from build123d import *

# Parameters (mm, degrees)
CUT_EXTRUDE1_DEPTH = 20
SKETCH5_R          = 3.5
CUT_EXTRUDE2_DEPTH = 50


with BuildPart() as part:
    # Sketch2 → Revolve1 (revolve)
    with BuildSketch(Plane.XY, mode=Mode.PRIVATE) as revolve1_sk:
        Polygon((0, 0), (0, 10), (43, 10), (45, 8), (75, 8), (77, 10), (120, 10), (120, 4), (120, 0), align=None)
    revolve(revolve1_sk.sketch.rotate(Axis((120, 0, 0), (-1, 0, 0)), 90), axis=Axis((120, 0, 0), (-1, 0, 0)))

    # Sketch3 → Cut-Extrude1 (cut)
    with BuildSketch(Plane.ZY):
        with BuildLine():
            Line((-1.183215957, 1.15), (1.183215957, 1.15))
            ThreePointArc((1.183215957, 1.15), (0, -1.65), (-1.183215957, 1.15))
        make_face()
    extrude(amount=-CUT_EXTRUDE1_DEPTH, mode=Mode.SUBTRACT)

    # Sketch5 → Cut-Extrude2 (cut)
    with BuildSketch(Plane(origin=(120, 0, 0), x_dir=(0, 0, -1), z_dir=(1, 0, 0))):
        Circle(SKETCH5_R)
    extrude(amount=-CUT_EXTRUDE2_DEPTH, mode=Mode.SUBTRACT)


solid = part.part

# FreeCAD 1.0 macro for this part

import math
import FreeCAD as App
import Part
import Sketcher

V = App.Vector

doc = App.newDocument("Part")
body = doc.addObject("PartDesign::Body", "Body")

sketch1 = doc.addObject("Sketcher::SketchObject", "Sketch")
body.addObject(sketch1)
sketch1.AttachmentSupport = (doc.XY_Plane, [""])
sketch1.MapMode = "FlatFace"
sketch1.addGeometry([
    Part.LineSegment(V(0, 10, 0), V(0, 0, 0)),
    Part.LineSegment(V(0, 0, 0), V(120, 0, 0)),
    Part.LineSegment(V(120, 0, 0), V(120, 10, 0)),
    Part.LineSegment(V(120, 10, 0), V(77, 10, 0)),
    Part.LineSegment(V(77, 10, 0), V(75, 8, 0)),
    Part.LineSegment(V(75, 8, 0), V(45, 8, 0)),
    Part.LineSegment(V(45, 8, 0), V(43, 10, 0)),
    Part.LineSegment(V(43, 10, 0), V(0, 10, 0)),
], False)
sketch1.addConstraint([
    Sketcher.Constraint("Coincident", 0, 2, 1, 1),
    Sketcher.Constraint("Coincident", 1, 2, 2, 1),
    Sketcher.Constraint("Coincident", 2, 2, 3, 1),
    Sketcher.Constraint("Coincident", 3, 2, 4, 1),
    Sketcher.Constraint("Coincident", 4, 2, 5, 1),
    Sketcher.Constraint("Coincident", 5, 2, 6, 1),
    Sketcher.Constraint("Coincident", 6, 2, 7, 1),
    Sketcher.Constraint("Coincident", 7, 2, 0, 1),
    Sketcher.Constraint("Vertical", 0),
    Sketcher.Constraint("Horizontal", 1),
    Sketcher.Constraint("Vertical", 2),
    Sketcher.Constraint("Horizontal", 3),
    Sketcher.Constraint("Horizontal", 5),
    Sketcher.Constraint("Horizontal", 7),
    Sketcher.Constraint("Coincident", 0, 2, -1, 1),
    Sketcher.Constraint("Perpendicular", 4, 6),
    Sketcher.Constraint("Horizontal", 3, 2, 6, 2),
    Sketcher.Constraint("Equal", 3, 7),
    Sketcher.Constraint("Equal", 4, 6),
    Sketcher.Constraint("DistanceX", 1, 1, 1, 2, 120.0),
    Sketcher.Constraint("DistanceX", 3, 2, 3, 1, 43.0),
    Sketcher.Constraint("DistanceX", 5, 2, 5, 1, 30.0),
    Sketcher.Constraint("DistanceY", 0, 2, 0, 1, 10.0),
])
revolution = doc.addObject("PartDesign::Revolution", "Revolution")
body.addObject(revolution)
revolution.Profile = sketch1
revolution.ReferenceAxis = (sketch1, ["H_Axis"])
revolution.Angle = 360

sketch2 = doc.addObject("Sketcher::SketchObject", "Sketch001")
body.addObject(sketch2)
sketch2.AttachmentSupport = (doc.YZ_Plane, [""])
sketch2.MapMode = "FlatFace"
sketch2.addGeometry([
    Part.LineSegment(V(1.1, 1.2, 0), V(1.1, -1.2, 0)),
    Part.ArcOfCircle(Part.Circle(V(0, 0, 0), V(0, 0, 1), 1.6), math.radians(46), math.radians(314)),
], False)
sketch2.addConstraint([
    Sketcher.Constraint("Coincident", 0, 1, 1, 1),
    Sketcher.Constraint("Coincident", 1, 2, 0, 2),
    Sketcher.Constraint("Vertical", 0),
    Sketcher.Constraint("Coincident", 1, 3, -1, 1),
    Sketcher.Constraint("Radius", 1, 1.65),
    Sketcher.Constraint("DistanceX", -1, 1, 0, 1, 1.15),
])
pocket1 = doc.addObject("PartDesign::Pocket", "Pocket")
body.addObject(pocket1)
pocket1.Profile = sketch2
pocket1.Length = 20
pocket1.Reversed = True

sketch3 = doc.addObject("Sketcher::SketchObject", "Sketch002")
body.addObject(sketch3)
sketch3.AttachmentSupport = (doc.YZ_Plane, [""])
sketch3.MapMode = "FlatFace"
sketch3.AttachmentOffset = App.Placement(V(0, 0, 120), App.Rotation())
sketch3.addGeometry(Part.Circle(V(0, 0, 0), V(0, 0, 1), 3.5), False)
sketch3.addConstraint([
    Sketcher.Constraint("Coincident", 0, 3, -1, 1),
    Sketcher.Constraint("Diameter", 0, 7.0),
])
pocket2 = doc.addObject("PartDesign::Pocket", "Pocket001")
body.addObject(pocket2)
pocket2.Profile = sketch3
pocket2.Length = 50

doc.recompute()
